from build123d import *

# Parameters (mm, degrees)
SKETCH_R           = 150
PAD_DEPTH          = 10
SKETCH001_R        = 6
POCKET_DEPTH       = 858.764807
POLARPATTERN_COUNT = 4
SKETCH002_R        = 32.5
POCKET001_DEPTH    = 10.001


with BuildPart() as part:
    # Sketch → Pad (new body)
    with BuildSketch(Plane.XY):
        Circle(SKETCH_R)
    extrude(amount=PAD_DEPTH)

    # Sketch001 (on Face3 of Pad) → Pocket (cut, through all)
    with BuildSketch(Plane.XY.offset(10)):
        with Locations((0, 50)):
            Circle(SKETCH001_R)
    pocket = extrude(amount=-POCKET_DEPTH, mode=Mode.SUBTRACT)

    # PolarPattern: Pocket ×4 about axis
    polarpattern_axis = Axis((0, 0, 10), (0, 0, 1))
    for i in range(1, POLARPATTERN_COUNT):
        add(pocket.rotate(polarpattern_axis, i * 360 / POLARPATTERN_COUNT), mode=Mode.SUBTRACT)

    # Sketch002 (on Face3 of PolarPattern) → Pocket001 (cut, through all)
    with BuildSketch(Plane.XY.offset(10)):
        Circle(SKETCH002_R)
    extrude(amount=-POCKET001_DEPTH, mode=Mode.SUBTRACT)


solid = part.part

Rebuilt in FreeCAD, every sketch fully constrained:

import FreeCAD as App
import Part
import Sketcher

V = App.Vector

doc = App.newDocument("Part")
body = doc.addObject("PartDesign::Body", "Body")

sketch1 = body.newObject("Sketcher::SketchObject", "Sketch")
sketch1.AttachmentSupport = (doc.getObject("XY_Plane"), [""])
sketch1.MapMode = "FlatFace"
sketch1.addGeometry(Part.Circle(V(0, 0, 0), V(0, 0, 1), 150), False)
sketch1.addConstraint([
    Sketcher.Constraint("Coincident", 0, 3, -1, 1),
    Sketcher.Constraint("Diameter", 0, 300.0),
])
pad1 = body.newObject("PartDesign::Pad", "Pad")
pad1.Profile = sketch1
pad1.Length = 10

sketch2 = body.newObject("Sketcher::SketchObject", "Sketch001")
sketch2.AttachmentSupport = (doc.getObject("XY_Plane"), [""])
sketch2.MapMode = "FlatFace"
sketch2.AttachmentOffset = App.Placement(V(0, 0, 10), App.Rotation())
sketch2.addGeometry(Part.Circle(V(0, 50, 0), V(0, 0, 1), 6), False)
sketch2.addConstraint([
    Sketcher.Constraint("PointOnObject", 0, 3, -2),
    Sketcher.Constraint("Diameter", 0, 12.0),
    Sketcher.Constraint("DistanceY", -1, 1, 0, 3, 50.0),
])
pocket1 = body.newObject("PartDesign::Pocket", "Pocket")
pocket1.Profile = sketch2
pocket1.Type = "ThroughAll"
doc.recompute()

polarpattern = body.newObject("PartDesign::PolarPattern", "PolarPattern")
polarpattern.Originals = [pocket1]
polarpattern.Axis = (doc.getObject("Z_Axis"), [""])
polarpattern.Angle = 360
polarpattern.Occurrences = 4
body.Tip = polarpattern

sketch3 = body.newObject("Sketcher::SketchObject", "Sketch002")
sketch3.AttachmentSupport = (doc.getObject("XY_Plane"), [""])
sketch3.MapMode = "FlatFace"
sketch3.AttachmentOffset = App.Placement(V(0, 0, 10), App.Rotation())
sketch3.addGeometry(Part.Circle(V(0, 0, 0), V(0, 0, 1), 32), False)
sketch3.addConstraint([
    Sketcher.Constraint("Coincident", 0, 3, -1, 1),
    Sketcher.Constraint("Diameter", 0, 65.0),
])
pocket2 = body.newObject("PartDesign::Pocket", "Pocket001")
pocket2.Profile = sketch3
pocket2.Type = "ThroughAll"

doc.recompute()
